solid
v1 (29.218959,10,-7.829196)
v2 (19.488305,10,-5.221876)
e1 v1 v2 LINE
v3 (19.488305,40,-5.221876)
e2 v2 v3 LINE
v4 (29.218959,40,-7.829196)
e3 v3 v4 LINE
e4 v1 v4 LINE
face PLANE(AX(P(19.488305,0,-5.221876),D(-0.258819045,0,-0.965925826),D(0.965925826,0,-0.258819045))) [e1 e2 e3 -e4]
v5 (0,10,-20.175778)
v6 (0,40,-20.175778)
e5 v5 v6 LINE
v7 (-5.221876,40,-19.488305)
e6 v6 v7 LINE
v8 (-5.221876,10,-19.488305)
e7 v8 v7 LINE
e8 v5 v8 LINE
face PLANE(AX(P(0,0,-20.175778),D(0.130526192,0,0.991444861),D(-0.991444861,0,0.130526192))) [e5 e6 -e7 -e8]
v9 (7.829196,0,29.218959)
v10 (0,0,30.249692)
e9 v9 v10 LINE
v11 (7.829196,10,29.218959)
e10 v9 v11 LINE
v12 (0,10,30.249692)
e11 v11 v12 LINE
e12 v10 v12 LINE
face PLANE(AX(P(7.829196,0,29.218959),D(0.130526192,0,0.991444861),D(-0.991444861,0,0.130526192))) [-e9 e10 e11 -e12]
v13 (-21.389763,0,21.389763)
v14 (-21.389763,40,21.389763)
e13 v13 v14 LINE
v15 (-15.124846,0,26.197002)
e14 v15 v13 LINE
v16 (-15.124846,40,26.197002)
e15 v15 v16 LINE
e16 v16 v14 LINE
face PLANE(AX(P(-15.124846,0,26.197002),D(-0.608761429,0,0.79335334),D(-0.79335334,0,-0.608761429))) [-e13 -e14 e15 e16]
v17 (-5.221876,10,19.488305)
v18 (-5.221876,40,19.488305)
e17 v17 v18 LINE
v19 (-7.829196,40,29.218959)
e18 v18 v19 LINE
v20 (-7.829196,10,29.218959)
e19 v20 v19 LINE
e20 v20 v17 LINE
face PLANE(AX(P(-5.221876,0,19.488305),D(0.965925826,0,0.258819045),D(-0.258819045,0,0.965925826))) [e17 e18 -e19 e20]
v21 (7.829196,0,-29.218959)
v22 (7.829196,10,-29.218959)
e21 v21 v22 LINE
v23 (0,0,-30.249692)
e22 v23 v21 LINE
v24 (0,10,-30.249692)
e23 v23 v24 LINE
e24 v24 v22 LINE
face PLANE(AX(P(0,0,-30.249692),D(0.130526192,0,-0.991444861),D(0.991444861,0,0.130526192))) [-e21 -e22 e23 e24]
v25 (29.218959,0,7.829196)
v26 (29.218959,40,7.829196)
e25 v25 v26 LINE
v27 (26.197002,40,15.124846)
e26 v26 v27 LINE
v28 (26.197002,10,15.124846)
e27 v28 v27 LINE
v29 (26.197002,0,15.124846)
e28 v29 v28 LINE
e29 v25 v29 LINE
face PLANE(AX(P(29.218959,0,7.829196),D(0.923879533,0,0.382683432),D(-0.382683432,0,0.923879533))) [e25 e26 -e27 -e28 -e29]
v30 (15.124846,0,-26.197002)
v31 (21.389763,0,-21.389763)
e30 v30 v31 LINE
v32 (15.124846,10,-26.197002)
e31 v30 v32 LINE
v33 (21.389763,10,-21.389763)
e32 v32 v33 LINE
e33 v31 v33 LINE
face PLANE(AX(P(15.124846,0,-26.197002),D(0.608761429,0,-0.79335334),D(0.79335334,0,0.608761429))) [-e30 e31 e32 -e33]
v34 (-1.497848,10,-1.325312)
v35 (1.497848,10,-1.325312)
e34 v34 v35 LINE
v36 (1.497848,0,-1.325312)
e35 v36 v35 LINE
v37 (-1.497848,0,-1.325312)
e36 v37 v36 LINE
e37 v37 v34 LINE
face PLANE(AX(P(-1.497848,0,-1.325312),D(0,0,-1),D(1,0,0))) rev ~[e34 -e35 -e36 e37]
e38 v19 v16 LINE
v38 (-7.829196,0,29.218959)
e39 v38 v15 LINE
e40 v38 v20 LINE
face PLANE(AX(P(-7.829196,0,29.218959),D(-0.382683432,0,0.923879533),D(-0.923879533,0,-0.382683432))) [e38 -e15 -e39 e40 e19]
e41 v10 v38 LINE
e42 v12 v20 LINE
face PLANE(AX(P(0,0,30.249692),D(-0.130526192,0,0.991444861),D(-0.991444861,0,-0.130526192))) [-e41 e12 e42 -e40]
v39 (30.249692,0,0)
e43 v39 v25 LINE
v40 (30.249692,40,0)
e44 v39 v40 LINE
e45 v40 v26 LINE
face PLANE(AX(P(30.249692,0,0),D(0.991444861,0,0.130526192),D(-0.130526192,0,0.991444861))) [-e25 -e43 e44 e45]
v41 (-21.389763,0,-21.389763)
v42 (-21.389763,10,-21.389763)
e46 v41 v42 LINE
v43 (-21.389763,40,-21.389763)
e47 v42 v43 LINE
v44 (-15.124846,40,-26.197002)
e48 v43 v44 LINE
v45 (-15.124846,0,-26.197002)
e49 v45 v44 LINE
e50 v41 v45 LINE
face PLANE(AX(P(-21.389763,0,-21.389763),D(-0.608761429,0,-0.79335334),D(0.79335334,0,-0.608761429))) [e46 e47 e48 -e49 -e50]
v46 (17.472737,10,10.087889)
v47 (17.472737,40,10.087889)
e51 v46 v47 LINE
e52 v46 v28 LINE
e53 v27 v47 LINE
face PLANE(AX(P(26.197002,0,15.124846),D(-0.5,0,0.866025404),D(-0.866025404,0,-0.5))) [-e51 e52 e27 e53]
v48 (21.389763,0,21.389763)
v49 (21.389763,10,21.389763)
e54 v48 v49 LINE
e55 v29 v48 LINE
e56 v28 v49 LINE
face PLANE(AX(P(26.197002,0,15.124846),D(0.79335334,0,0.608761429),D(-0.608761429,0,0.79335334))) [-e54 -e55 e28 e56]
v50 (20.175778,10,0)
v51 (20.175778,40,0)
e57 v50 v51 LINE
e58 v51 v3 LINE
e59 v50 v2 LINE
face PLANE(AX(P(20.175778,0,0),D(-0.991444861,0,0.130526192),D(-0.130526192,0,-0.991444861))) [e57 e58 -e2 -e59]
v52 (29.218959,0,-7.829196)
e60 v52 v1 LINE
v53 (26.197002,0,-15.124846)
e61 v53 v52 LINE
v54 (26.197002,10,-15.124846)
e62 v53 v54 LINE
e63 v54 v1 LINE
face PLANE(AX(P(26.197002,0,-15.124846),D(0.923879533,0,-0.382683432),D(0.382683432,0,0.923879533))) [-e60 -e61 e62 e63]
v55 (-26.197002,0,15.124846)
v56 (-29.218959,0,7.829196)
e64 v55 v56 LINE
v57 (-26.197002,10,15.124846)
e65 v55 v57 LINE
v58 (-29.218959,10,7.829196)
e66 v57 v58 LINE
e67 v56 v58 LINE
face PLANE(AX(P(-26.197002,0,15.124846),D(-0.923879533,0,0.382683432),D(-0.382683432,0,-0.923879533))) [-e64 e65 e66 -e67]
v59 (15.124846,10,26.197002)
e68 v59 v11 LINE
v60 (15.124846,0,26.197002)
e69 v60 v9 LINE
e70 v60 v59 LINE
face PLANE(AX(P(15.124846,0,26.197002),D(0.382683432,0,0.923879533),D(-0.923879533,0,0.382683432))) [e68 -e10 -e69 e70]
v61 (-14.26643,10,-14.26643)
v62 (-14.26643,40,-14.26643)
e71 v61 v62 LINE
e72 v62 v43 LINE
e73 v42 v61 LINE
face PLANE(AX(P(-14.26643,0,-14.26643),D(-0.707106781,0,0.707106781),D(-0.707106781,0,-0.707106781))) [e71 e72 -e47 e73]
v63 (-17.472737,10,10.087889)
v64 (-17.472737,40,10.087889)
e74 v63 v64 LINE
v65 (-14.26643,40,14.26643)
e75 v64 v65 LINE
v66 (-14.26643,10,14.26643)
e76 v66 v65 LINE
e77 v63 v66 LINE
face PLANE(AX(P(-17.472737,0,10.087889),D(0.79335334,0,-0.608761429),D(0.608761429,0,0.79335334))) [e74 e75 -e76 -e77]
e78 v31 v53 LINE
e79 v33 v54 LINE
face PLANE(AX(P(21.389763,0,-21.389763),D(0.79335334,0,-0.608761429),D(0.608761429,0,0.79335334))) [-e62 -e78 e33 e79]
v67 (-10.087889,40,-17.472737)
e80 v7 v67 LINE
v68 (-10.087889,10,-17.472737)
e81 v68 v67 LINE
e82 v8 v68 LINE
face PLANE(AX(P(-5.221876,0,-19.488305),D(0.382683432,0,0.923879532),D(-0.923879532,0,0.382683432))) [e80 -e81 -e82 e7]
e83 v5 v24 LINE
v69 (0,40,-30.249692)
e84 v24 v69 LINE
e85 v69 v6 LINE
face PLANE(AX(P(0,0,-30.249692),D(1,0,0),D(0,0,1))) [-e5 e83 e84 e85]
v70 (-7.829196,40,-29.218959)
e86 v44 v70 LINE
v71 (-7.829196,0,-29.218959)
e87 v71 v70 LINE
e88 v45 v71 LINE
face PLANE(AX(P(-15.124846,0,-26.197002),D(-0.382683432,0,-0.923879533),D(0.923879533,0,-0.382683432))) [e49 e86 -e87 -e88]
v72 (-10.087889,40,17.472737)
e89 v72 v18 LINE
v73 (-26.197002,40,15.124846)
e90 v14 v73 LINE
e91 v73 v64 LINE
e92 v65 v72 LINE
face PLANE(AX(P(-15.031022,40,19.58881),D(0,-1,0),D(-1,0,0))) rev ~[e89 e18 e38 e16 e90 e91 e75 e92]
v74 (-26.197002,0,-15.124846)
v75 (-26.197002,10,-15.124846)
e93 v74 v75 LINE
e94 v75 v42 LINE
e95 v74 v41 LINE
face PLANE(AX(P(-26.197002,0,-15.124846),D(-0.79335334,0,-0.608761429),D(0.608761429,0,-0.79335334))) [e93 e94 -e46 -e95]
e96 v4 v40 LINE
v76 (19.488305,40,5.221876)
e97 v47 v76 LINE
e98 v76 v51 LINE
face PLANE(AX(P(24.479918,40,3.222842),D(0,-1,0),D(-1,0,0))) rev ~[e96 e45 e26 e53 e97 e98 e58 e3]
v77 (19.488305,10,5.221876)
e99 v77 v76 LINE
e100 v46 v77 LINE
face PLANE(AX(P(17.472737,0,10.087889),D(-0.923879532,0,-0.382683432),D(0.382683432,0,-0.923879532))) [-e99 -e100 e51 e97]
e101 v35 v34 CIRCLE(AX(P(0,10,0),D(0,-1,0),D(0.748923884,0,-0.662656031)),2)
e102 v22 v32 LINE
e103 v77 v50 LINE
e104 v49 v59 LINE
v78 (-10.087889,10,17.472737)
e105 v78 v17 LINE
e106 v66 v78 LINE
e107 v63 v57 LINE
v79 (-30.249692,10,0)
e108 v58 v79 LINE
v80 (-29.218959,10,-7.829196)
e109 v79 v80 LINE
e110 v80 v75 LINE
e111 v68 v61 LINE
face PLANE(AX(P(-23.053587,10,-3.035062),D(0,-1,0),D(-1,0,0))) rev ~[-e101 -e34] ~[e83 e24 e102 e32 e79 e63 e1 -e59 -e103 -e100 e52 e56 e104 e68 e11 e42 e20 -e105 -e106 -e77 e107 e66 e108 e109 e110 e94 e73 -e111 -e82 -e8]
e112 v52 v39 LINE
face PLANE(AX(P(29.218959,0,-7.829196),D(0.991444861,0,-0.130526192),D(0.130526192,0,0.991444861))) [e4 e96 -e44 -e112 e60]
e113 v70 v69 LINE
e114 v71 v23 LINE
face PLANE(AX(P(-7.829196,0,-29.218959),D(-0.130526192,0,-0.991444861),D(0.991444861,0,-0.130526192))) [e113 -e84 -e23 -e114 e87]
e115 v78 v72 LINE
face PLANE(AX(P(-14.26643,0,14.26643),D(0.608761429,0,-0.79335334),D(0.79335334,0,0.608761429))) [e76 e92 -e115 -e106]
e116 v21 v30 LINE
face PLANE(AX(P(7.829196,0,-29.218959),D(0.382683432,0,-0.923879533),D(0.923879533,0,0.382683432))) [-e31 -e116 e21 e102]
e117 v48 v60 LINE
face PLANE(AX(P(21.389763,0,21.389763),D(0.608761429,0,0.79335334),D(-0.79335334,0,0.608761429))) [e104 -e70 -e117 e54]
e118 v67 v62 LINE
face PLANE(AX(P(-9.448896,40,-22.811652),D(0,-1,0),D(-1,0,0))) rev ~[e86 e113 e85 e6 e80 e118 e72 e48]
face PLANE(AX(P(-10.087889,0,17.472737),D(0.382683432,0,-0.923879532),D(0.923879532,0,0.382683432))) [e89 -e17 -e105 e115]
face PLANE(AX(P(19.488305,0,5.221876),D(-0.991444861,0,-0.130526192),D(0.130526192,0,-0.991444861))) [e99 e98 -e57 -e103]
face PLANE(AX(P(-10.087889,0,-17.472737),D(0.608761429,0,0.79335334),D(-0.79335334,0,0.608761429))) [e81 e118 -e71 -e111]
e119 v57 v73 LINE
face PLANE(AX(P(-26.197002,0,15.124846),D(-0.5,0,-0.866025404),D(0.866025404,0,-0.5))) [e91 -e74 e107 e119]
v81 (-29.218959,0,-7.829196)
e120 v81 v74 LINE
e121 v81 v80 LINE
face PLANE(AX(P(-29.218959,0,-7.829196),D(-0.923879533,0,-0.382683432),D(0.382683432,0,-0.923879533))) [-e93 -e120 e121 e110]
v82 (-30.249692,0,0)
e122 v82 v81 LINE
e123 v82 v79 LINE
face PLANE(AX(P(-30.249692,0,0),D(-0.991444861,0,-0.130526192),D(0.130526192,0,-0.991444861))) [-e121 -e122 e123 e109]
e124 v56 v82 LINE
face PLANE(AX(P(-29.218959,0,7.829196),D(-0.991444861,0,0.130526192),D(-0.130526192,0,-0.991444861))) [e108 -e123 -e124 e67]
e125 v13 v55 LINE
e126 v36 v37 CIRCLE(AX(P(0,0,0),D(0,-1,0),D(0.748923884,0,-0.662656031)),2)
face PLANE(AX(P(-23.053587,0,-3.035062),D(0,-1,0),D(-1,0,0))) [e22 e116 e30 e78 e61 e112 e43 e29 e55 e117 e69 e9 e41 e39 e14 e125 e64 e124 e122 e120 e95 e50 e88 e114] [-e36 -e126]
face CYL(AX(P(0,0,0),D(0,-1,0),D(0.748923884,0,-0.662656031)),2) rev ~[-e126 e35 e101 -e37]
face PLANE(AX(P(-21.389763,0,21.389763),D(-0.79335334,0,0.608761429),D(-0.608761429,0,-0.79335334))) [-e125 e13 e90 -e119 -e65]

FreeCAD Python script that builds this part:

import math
import FreeCAD as App
import Part
import Sketcher
Q = App.Units.Quantity

doc = App.newDocument("Part")
body = doc.addObject("PartDesign::Body", "Body")

# Sketch on XZ plane
sketch1 = doc.addObject("Sketcher::SketchObject", "Sketch")
body.addObject(sketch1)
sketch1.AttachmentSupport = (doc.XZ_Plane, [""])
sketch1.MapMode = "FlatFace"
sketch1.addGeometry(Part.LineSegment(App.Vector(-10.1, -17.5, 0), App.Vector(-14.3, -14.3, 0)), False)
sketch1.addGeometry(Part.LineSegment(App.Vector(-14.3, -14.3, 0), App.Vector(-17.5, -10.1, 0)), False)
sketch1.addGeometry(Part.LineSegment(App.Vector(-17.5, -10.1, 0), App.Vector(-19.5, -5.2, 0)), False)
sketch1.addGeometry(Part.LineSegment(App.Vector(-19.5, -5.2, 0), App.Vector(-20.2, 0, 0)), False)
sketch1.addGeometry(Part.LineSegment(App.Vector(-20.2, 0, 0), App.Vector(-19.5, 5.2, 0)), False)
sketch1.addGeometry(Part.LineSegment(App.Vector(-19.5, 5.2, 0), App.Vector(-17.5, 10.1, 0)), False)
sketch1.addGeometry(Part.LineSegment(App.Vector(-17.5, 10.1, 0), App.Vector(-14.3, 14.3, 0)), False)
sketch1.addGeometry(Part.LineSegment(App.Vector(-14.3, 14.3, 0), App.Vector(-10.1, 17.5, 0)), False)
sketch1.addGeometry(Part.LineSegment(App.Vector(-10.1, 17.5, 0), App.Vector(-5.2, 19.5, 0)), False)
sketch1.addGeometry(Part.LineSegment(App.Vector(-5.2, 19.5, 0), App.Vector(0, 20.2, 0)), False)
sketch1.addGeometry(Part.LineSegment(App.Vector(0, 20.2, 0), App.Vector(5.2, 19.5, 0)), False)
sketch1.addGeometry(Part.LineSegment(App.Vector(5.2, 19.5, 0), App.Vector(10.1, 17.5, 0)), False)
sketch1.addGeometry(Part.LineSegment(App.Vector(10.1, 17.5, 0), App.Vector(14.3, 14.3, 0)), False)
sketch1.addGeometry(Part.LineSegment(App.Vector(14.3, 14.3, 0), App.Vector(17.5, 10.1, 0)), False)
sketch1.addGeometry(Part.LineSegment(App.Vector(17.5, 10.1, 0), App.Vector(19.5, 5.2, 0)), False)
sketch1.addGeometry(Part.LineSegment(App.Vector(19.5, 5.2, 0), App.Vector(20.2, 0, 0)), False)
sketch1.addGeometry(Part.LineSegment(App.Vector(20.2, 0, 0), App.Vector(19.5, -5.2, 0)), False)
sketch1.addGeometry(Part.LineSegment(App.Vector(19.5, -5.2, 0), App.Vector(17.5, -10.1, 0)), False)
sketch1.addGeometry(Part.LineSegment(App.Vector(17.5, -10.1, 0), App.Vector(14.3, -14.3, 0)), False)
sketch1.addGeometry(Part.LineSegment(App.Vector(14.3, -14.3, 0), App.Vector(10.1, -17.5, 0)), False)
sketch1.addGeometry(Part.LineSegment(App.Vector(10.1, -17.5, 0), App.Vector(5.2, -19.5, 0)), False)
sketch1.addGeometry(Part.LineSegment(App.Vector(5.2, -19.5, 0), App.Vector(0, -20.2, 0)), False)
sketch1.addGeometry(Part.LineSegment(App.Vector(0, -20.2, 0), App.Vector(-5.2, -19.5, 0)), False)
sketch1.addGeometry(Part.LineSegment(App.Vector(-5.2, -19.5, 0), App.Vector(-10.1, -17.5, 0)), False)
sketch1.addGeometry(Part.ArcOfCircle(Part.Circle(App.Vector(0, 0, 0), App.Vector(0, 0, 1), 2), math.radians(-42), math.radians(222)), False)
sketch1.addGeometry(Part.LineSegment(App.Vector(-1.5, -1.3, 0), App.Vector(1.5, -1.3, 0)), False)
sketch1.addConstraint(Sketcher.Constraint("Coincident", 0, 2, 1, 1))
sketch1.addConstraint(Sketcher.Constraint("Coincident", 1, 2, 2, 1))
sketch1.addConstraint(Sketcher.Constraint("Coincident", 2, 2, 3, 1))
sketch1.addConstraint(Sketcher.Constraint("Coincident", 3, 2, 4, 1))
sketch1.addConstraint(Sketcher.Constraint("Coincident", 4, 2, 5, 1))
sketch1.addConstraint(Sketcher.Constraint("Coincident", 5, 2, 6, 1))
sketch1.addConstraint(Sketcher.Constraint("Coincident", 6, 2, 7, 1))
sketch1.addConstraint(Sketcher.Constraint("Coincident", 7, 2, 8, 1))
sketch1.addConstraint(Sketcher.Constraint("Coincident", 8, 2, 9, 1))
sketch1.addConstraint(Sketcher.Constraint("Coincident", 9, 2, 10, 1))
sketch1.addConstraint(Sketcher.Constraint("Coincident", 10, 2, 11, 1))
sketch1.addConstraint(Sketcher.Constraint("Coincident", 11, 2, 12, 1))
sketch1.addConstraint(Sketcher.Constraint("Coincident", 12, 2, 13, 1))
sketch1.addConstraint(Sketcher.Constraint("Coincident", 13, 2, 14, 1))
sketch1.addConstraint(Sketcher.Constraint("Coincident", 14, 2, 15, 1))
sketch1.addConstraint(Sketcher.Constraint("Coincident", 15, 2, 16, 1))
sketch1.addConstraint(Sketcher.Constraint("Coincident", 16, 2, 17, 1))
sketch1.addConstraint(Sketcher.Constraint("Coincident", 17, 2, 18, 1))
sketch1.addConstraint(Sketcher.Constraint("Coincident", 18, 2, 19, 1))
sketch1.addConstraint(Sketcher.Constraint("Coincident", 19, 2, 20, 1))
sketch1.addConstraint(Sketcher.Constraint("Coincident", 20, 2, 21, 1))
sketch1.addConstraint(Sketcher.Constraint("Coincident", 21, 2, 22, 1))
sketch1.addConstraint(Sketcher.Constraint("Coincident", 22, 2, 23, 1))
sketch1.addConstraint(Sketcher.Constraint("Coincident", 23, 2, 0, 1))
sketch1.addConstraint(Sketcher.Constraint("Coincident", 24, 1, 25, 2))
sketch1.addConstraint(Sketcher.Constraint("Coincident", 25, 1, 24, 2))
sketch1.addConstraint(Sketcher.Constraint("Horizontal", 25))
sketch1.addConstraint(Sketcher.Constraint("Coincident", 24, 3, -1, 1))
sketch1.addConstraint(Sketcher.Constraint("Symmetric", 0, 2, 12, 2, -1, 1))
sketch1.addConstraint(Sketcher.Constraint("Symmetric", 1, 2, 13, 2, -1, 1))
sketch1.addConstraint(Sketcher.Constraint("Symmetric", 2, 2, 14, 2, -1, 1))
sketch1.addConstraint(Sketcher.Constraint("Symmetric", 3, 2, 15, 2, -1, 1))
sketch1.addConstraint(Sketcher.Constraint("Symmetric", 4, 2, 16, 2, -1, 1))
sketch1.addConstraint(Sketcher.Constraint("Symmetric", 5, 2, 17, 2, -1, 1))
sketch1.addConstraint(Sketcher.Constraint("Symmetric", 6, 2, 18, 2, -1, 1))
sketch1.addConstraint(Sketcher.Constraint("Symmetric", 7, 2, 19, 2, -1, 1))
sketch1.addConstraint(Sketcher.Constraint("Symmetric", 8, 2, 20, 2, -1, 1))
sketch1.addConstraint(Sketcher.Constraint("Symmetric", 9, 2, 21, 2, -1, 1))
sketch1.addConstraint(Sketcher.Constraint("Symmetric", 10, 2, 22, 2, -1, 1))
sketch1.addConstraint(Sketcher.Constraint("Symmetric", 11, 2, 23, 2, -1, 1))
sketch1.addConstraint(Sketcher.Constraint("Symmetric", 8, 2, 10, 2, -2))
sketch1.addConstraint(Sketcher.Constraint("Symmetric", 7, 2, 11, 2, -2))
sketch1.addConstraint(Sketcher.Constraint("Symmetric", 6, 2, 12, 2, -2))
sketch1.addConstraint(Sketcher.Constraint("Symmetric", 5, 2, 13, 2, -2))
sketch1.addConstraint(Sketcher.Constraint("Symmetric", 4, 2, 14, 2, -2))
sketch1.addConstraint(Sketcher.Constraint("PointOnObject", 3, 2, -1))
sketch1.addConstraint(Sketcher.Constraint("PointOnObject", 9, 2, -2))
sketch1.addConstraint(Sketcher.Constraint("Perpendicular", 0, 6))
sketch1.addConstraint(Sketcher.Constraint("Perpendicular", 2, 8))
sketch1.addConstraint(Sketcher.Constraint("Perpendicular", 3, 9))
sketch1.addConstraint(Sketcher.Constraint("Equal", 0, 1))
sketch1.addConstraint(Sketcher.Constraint("Equal", 1, 2))
sketch1.addConstraint(Sketcher.Constraint("Equal", 2, 3))
sketch1.addConstraint(Sketcher.Constraint("Equal", 7, 8))
sketch1.addConstraint(Sketcher.Constraint("Equal", 8, 9))
sketch1.addConstraint(Sketcher.Constraint("Radius", 24, Q("2 mm")))
sketch1.addConstraint(Sketcher.Constraint("Angle", 0, Q("142.5 deg")))
sketch1.addConstraint(Sketcher.Constraint("Angle", 2, Q("112.5 deg")))
sketch1.addConstraint(Sketcher.Constraint("Angle", 3, Q("97.5 deg")))
sketch1.addConstraint(Sketcher.Constraint("DistanceX", 25, 1, 25, 2, Q("2.995696 mm")))
sketch1.addConstraint(Sketcher.Constraint("DistanceX", 0, 2, -1, 1, Q("14.26643 mm")))
pad1 = doc.addObject("PartDesign::Pad", "Pad")
body.addObject(pad1)
pad1.Profile = sketch1
pad1.Length = 10
pad1.Reversed = True

# Sketch on XZ plane
sketch2 = doc.addObject("Sketcher::SketchObject", "Sketch001")
body.addObject(sketch2)
sketch2.AttachmentSupport = (doc.XZ_Plane, [""])
sketch2.MapMode = "FlatFace"
sketch2.addGeometry(Part.LineSegment(App.Vector(-14, 14, 0), App.Vector(-17, 10, 0)), False)
sketch2.addGeometry(Part.LineSegment(App.Vector(-17, 10, 0), App.Vector(-26, 15, 0)), False)
sketch2.addGeometry(Part.LineSegment(App.Vector(-26, 15, 0), App.Vector(-21, 21, 0)), False)
sketch2.addGeometry(Part.LineSegment(App.Vector(-21, 21, 0), App.Vector(-15, 26, 0)), False)
sketch2.addGeometry(Part.LineSegment(App.Vector(-15, 26, 0), App.Vector(-8, 29, 0)), False)
sketch2.addGeometry(Part.LineSegment(App.Vector(-8, 29, 0), App.Vector(-5, 19, 0)), False)
sketch2.addGeometry(Part.LineSegment(App.Vector(-5, 19, 0), App.Vector(-10, 17, 0)), False)
sketch2.addGeometry(Part.LineSegment(App.Vector(-10, 17, 0), App.Vector(-14, 14, 0)), False)
sketch2.addGeometry(Part.LineSegment(App.Vector(-5, -19, 0), App.Vector(0, -20, 0)), False)
sketch2.addGeometry(Part.LineSegment(App.Vector(0, -20, 0), App.Vector(0, -30, 0)), False)
sketch2.addGeometry(Part.LineSegment(App.Vector(0, -30, 0), App.Vector(-8, -29, 0)), False)
sketch2.addGeometry(Part.LineSegment(App.Vector(-8, -29, 0), App.Vector(-15, -26, 0)), False)
sketch2.addGeometry(Part.LineSegment(App.Vector(-15, -26, 0), App.Vector(-21, -21, 0)), False)
sketch2.addGeometry(Part.LineSegment(App.Vector(-21, -21, 0), App.Vector(-14, -14, 0)), False)
sketch2.addGeometry(Part.LineSegment(App.Vector(-14, -14, 0), App.Vector(-10, -17, 0)), False)
sketch2.addGeometry(Part.LineSegment(App.Vector(-10, -17, 0), App.Vector(-5, -19, 0)), False)
sketch2.addGeometry(Part.LineSegment(App.Vector(19, 5, 0), App.Vector(17, 10, 0)), False)
sketch2.addGeometry(Part.LineSegment(App.Vector(17, 10, 0), App.Vector(26, 15, 0)), False)
sketch2.addGeometry(Part.LineSegment(App.Vector(26, 15, 0), App.Vector(29, 8, 0)), False)
sketch2.addGeometry(Part.LineSegment(App.Vector(29, 8, 0), App.Vector(30, 0, 0)), False)
sketch2.addGeometry(Part.LineSegment(App.Vector(30, 0, 0), App.Vector(29, -8, 0)), False)
sketch2.addGeometry(Part.LineSegment(App.Vector(29, -8, 0), App.Vector(19, -5, 0)), False)
sketch2.addGeometry(Part.LineSegment(App.Vector(19, -5, 0), App.Vector(20, 0, 0)), False)
sketch2.addGeometry(Part.LineSegment(App.Vector(20, 0, 0), App.Vector(19, 5, 0)), False)
sketch2.addConstraint(Sketcher.Constraint("Coincident", 0, 2, 1, 1))
sketch2.addConstraint(Sketcher.Constraint("Coincident", 1, 2, 2, 1))
sketch2.addConstraint(Sketcher.Constraint("Coincident", 2, 2, 3, 1))
sketch2.addConstraint(Sketcher.Constraint("Coincident", 3, 2, 4, 1))
sketch2.addConstraint(Sketcher.Constraint("Coincident", 4, 2, 5, 1))
sketch2.addConstraint(Sketcher.Constraint("Coincident", 5, 2, 6, 1))
sketch2.addConstraint(Sketcher.Constraint("Coincident", 6, 2, 7, 1))
sketch2.addConstraint(Sketcher.Constraint("Coincident", 7, 2, 0, 1))
sketch2.addConstraint(Sketcher.Constraint("Coincident", 8, 2, 9, 1))
sketch2.addConstraint(Sketcher.Constraint("Coincident", 9, 2, 10, 1))
sketch2.addConstraint(Sketcher.Constraint("Coincident", 10, 2, 11, 1))
sketch2.addConstraint(Sketcher.Constraint("Coincident", 11, 2, 12, 1))
sketch2.addConstraint(Sketcher.Constraint("Coincident", 12, 2, 13, 1))
sketch2.addConstraint(Sketcher.Constraint("Coincident", 13, 2, 14, 1))
sketch2.addConstraint(Sketcher.Constraint("Coincident", 14, 2, 15, 1))
sketch2.addConstraint(Sketcher.Constraint("Coincident", 15, 2, 8, 1))
sketch2.addConstraint(Sketcher.Constraint("Coincident", 16, 2, 17, 1))
sketch2.addConstraint(Sketcher.Constraint("Coincident", 17, 2, 18, 1))
sketch2.addConstraint(Sketcher.Constraint("Coincident", 18, 2, 19, 1))
sketch2.addConstraint(Sketcher.Constraint("Coincident", 19, 2, 20, 1))
sketch2.addConstraint(Sketcher.Constraint("Coincident", 20, 2, 21, 1))
sketch2.addConstraint(Sketcher.Constraint("Coincident", 21, 2, 22, 1))
sketch2.addConstraint(Sketcher.Constraint("Coincident", 22, 2, 23, 1))
sketch2.addConstraint(Sketcher.Constraint("Coincident", 23, 2, 16, 1))
sketch2.addConstraint(Sketcher.Constraint("Vertical", 9))
sketch2.addConstraint(Sketcher.Constraint("Symmetric", 0, 2, 16, 2, -2))
sketch2.addConstraint(Sketcher.Constraint("Symmetric", 1, 2, 17, 2, -2))
sketch2.addConstraint(Sketcher.Constraint("Symmetric", 4, 2, 10, 2, -1))
sketch2.addConstraint(Sketcher.Constraint("Symmetric", 3, 2, 11, 2, -1))
sketch2.addConstraint(Sketcher.Constraint("Symmetric", 2, 2, 12, 2, -1))
sketch2.addConstraint(Sketcher.Constraint("Symmetric", 7, 2, 13, 2, -1))
sketch2.addConstraint(Sketcher.Constraint("Symmetric", 6, 2, 14, 2, -1))
sketch2.addConstraint(Sketcher.Constraint("Symmetric", 5, 2, 15, 2, -1))
sketch2.addConstraint(Sketcher.Constraint("Symmetric", 18, 2, 20, 2, -1))
sketch2.addConstraint(Sketcher.Constraint("Symmetric", 21, 2, 23, 2, -1))
sketch2.addConstraint(Sketcher.Constraint("PointOnObject", 8, 2, -2))
sketch2.addConstraint(Sketcher.Constraint("PointOnObject", 19, 2, -1))
sketch2.addConstraint(Sketcher.Constraint("PointOnObject", 22, 2, -1))
sketch2.addConstraint(Sketcher.Constraint("Parallel", 0, 2))
sketch2.addConstraint(Sketcher.Constraint("Parallel", 4, 6))
sketch2.addConstraint(Sketcher.Constraint("Parallel", 3, 7))
sketch2.addConstraint(Sketcher.Constraint("Parallel", 8, 10))
sketch2.addConstraint(Sketcher.Constraint("Perpendicular", 2, 12))
sketch2.addConstraint(Sketcher.Constraint("Perpendicular", 6, 16))
sketch2.addConstraint(Sketcher.Constraint("Parallel", 16, 18))
sketch2.addConstraint(Sketcher.Constraint("Perpendicular", 10, 20))
sketch2.addConstraint(Sketcher.Constraint("Parallel", 20, 22))
sketch2.addConstraint(Sketcher.Constraint("Equal", 2, 3))
sketch2.addConstraint(Sketcher.Constraint("Equal", 3, 4))
sketch2.addConstraint(Sketcher.Constraint("Equal", 1, 5))
sketch2.addConstraint(Sketcher.Constraint("Equal", 0, 6))
sketch2.addConstraint(Sketcher.Constraint("Equal", 6, 7))
sketch2.addConstraint(Sketcher.Constraint("Equal", 7, 8))
sketch2.addConstraint(Sketcher.Constraint("Equal", 4, 10))
sketch2.addConstraint(Sketcher.Constraint("Equal", 5, 13))
sketch2.addConstraint(Sketcher.Constraint("Equal", 15, 16))
sketch2.addConstraint(Sketcher.Constraint("Equal", 12, 18))
sketch2.addConstraint(Sketcher.Constraint("Equal", 18, 19))
sketch2.addConstraint(Sketcher.Constraint("Equal", 17, 21))
sketch2.addConstraint(Sketcher.Constraint("Angle", 1, Q("150 deg")))
sketch2.addConstraint(Sketcher.Constraint("DistanceX", 4, 2, 17, 2, Q("34.026198 mm")))
sketch2.addConstraint(Sketcher.Constraint("DistanceY", 9, 2, 9, 1, Q("10.073914 mm")))
pad2 = doc.addObject("PartDesign::Pad", "Pad001")
body.addObject(pad2)
pad2.Profile = sketch2
pad2.Length = 40
pad2.Reversed = True

# Sketch on XZ plane
sketch3 = doc.addObject("Sketcher::SketchObject", "Sketch002")
body.addObject(sketch3)
sketch3.AttachmentSupport = (doc.XZ_Plane, [""])
sketch3.MapMode = "FlatFace"
sketch3.addGeometry(Part.LineSegment(App.Vector(-26, 15, 0), App.Vector(-17, 10, 0)), False)
sketch3.addGeometry(Part.LineSegment(App.Vector(-17, 10, 0), App.Vector(-19, 5, 0)), False)
sketch3.addGeometry(Part.LineSegment(App.Vector(-19, 5, 0), App.Vector(-20, 0, 0)), False)
sketch3.addGeometry(Part.LineSegment(App.Vector(-20, 0, 0), App.Vector(-19, -5, 0)), False)
sketch3.addGeometry(Part.LineSegment(App.Vector(-19, -5, 0), App.Vector(-17, -10, 0)), False)
sketch3.addGeometry(Part.LineSegment(App.Vector(-17, -10, 0), App.Vector(-14, -14, 0)), False)
sketch3.addGeometry(Part.LineSegment(App.Vector(-14, -14, 0), App.Vector(-21, -21, 0)), False)
sketch3.addGeometry(Part.LineSegment(App.Vector(-21, -21, 0), App.Vector(-26, -15, 0)), False)
sketch3.addGeometry(Part.LineSegment(App.Vector(-26, -15, 0), App.Vector(-29, -8, 0)), False)
sketch3.addGeometry(Part.LineSegment(App.Vector(-29, -8, 0), App.Vector(-30, 0, 0)), False)
sketch3.addGeometry(Part.LineSegment(App.Vector(-30, 0, 0), App.Vector(-29, 8, 0)), False)
sketch3.addGeometry(Part.LineSegment(App.Vector(-29, 8, 0), App.Vector(-26, 15, 0)), False)
sketch3.addGeometry(Part.LineSegment(App.Vector(17, -10, 0), App.Vector(19, -5, 0)), False)
sketch3.addGeometry(Part.LineSegment(App.Vector(19, -5, 0), App.Vector(29, -8, 0)), False)
sketch3.addGeometry(Part.LineSegment(App.Vector(29, -8, 0), App.Vector(26, -15, 0)), False)
sketch3.addGeometry(Part.LineSegment(App.Vector(26, -15, 0), App.Vector(21, -21, 0)), False)
sketch3.addGeometry(Part.LineSegment(App.Vector(21, -21, 0), App.Vector(15, -26, 0)), False)
sketch3.addGeometry(Part.LineSegment(App.Vector(15, -26, 0), App.Vector(8, -29, 0)), False)
sketch3.addGeometry(Part.LineSegment(App.Vector(8, -29, 0), App.Vector(0, -30, 0)), False)
sketch3.addGeometry(Part.LineSegment(App.Vector(0, -30, 0), App.Vector(0, -20, 0)), False)
sketch3.addGeometry(Part.LineSegment(App.Vector(0, -20, 0), App.Vector(5, -19, 0)), False)
sketch3.addGeometry(Part.LineSegment(App.Vector(5, -19, 0), App.Vector(10, -17, 0)), False)
sketch3.addGeometry(Part.LineSegment(App.Vector(10, -17, 0), App.Vector(14, -14, 0)), False)
sketch3.addGeometry(Part.LineSegment(App.Vector(14, -14, 0), App.Vector(17, -10, 0)), False)
sketch3.addGeometry(Part.LineSegment(App.Vector(0, 20, 0), App.Vector(-5, 19, 0)), False)
sketch3.addGeometry(Part.LineSegment(App.Vector(-5, 19, 0), App.Vector(-8, 29, 0)), False)
sketch3.addGeometry(Part.LineSegment(App.Vector(-8, 29, 0), App.Vector(0, 30, 0)), False)
sketch3.addGeometry(Part.LineSegment(App.Vector(0, 30, 0), App.Vector(8, 29, 0)), False)
sketch3.addGeometry(Part.LineSegment(App.Vector(8, 29, 0), App.Vector(15, 26, 0)), False)
sketch3.addGeometry(Part.LineSegment(App.Vector(15, 26, 0), App.Vector(21, 21, 0)), False)
sketch3.addGeometry(Part.LineSegment(App.Vector(21, 21, 0), App.Vector(26, 15, 0)), False)
sketch3.addGeometry(Part.LineSegment(App.Vector(26, 15, 0), App.Vector(17, 10, 0)), False)
sketch3.addGeometry(Part.LineSegment(App.Vector(17, 10, 0), App.Vector(14, 14, 0)), False)
sketch3.addGeometry(Part.LineSegment(App.Vector(14, 14, 0), App.Vector(10, 17, 0)), False)
sketch3.addGeometry(Part.LineSegment(App.Vector(10, 17, 0), App.Vector(5, 19, 0)), False)
sketch3.addGeometry(Part.LineSegment(App.Vector(5, 19, 0), App.Vector(0, 20, 0)), False)
sketch3.addConstraint(Sketcher.Constraint("Coincident", 0, 2, 1, 1))
sketch3.addConstraint(Sketcher.Constraint("Coincident", 1, 2, 2, 1))
sketch3.addConstraint(Sketcher.Constraint("Coincident", 2, 2, 3, 1))
sketch3.addConstraint(Sketcher.Constraint("Coincident", 3, 2, 4, 1))
sketch3.addConstraint(Sketcher.Constraint("Coincident", 4, 2, 5, 1))
sketch3.addConstraint(Sketcher.Constraint("Coincident", 5, 2, 6, 1))
sketch3.addConstraint(Sketcher.Constraint("Coincident", 6, 2, 7, 1))
sketch3.addConstraint(Sketcher.Constraint("Coincident", 7, 2, 8, 1))
sketch3.addConstraint(Sketcher.Constraint("Coincident", 8, 2, 9, 1))
sketch3.addConstraint(Sketcher.Constraint("Coincident", 9, 2, 10, 1))
sketch3.addConstraint(Sketcher.Constraint("Coincident", 10, 2, 11, 1))
sketch3.addConstraint(Sketcher.Constraint("Coincident", 11, 2, 0, 1))
sketch3.addConstraint(Sketcher.Constraint("Coincident", 12, 2, 13, 1))
sketch3.addConstraint(Sketcher.Constraint("Coincident", 13, 2, 14, 1))
sketch3.addConstraint(Sketcher.Constraint("Coincident", 14, 2, 15, 1))
sketch3.addConstraint(Sketcher.Constraint("Coincident", 15, 2, 16, 1))
sketch3.addConstraint(Sketcher.Constraint("Coincident", 16, 2, 17, 1))
sketch3.addConstraint(Sketcher.Constraint("Coincident", 17, 2, 18, 1))
sketch3.addConstraint(Sketcher.Constraint("Coincident", 18, 2, 19, 1))
sketch3.addConstraint(Sketcher.Constraint("Coincident", 19, 2, 20, 1))
sketch3.addConstraint(Sketcher.Constraint("Coincident", 20, 2, 21, 1))
sketch3.addConstraint(Sketcher.Constraint("Coincident", 21, 2, 22, 1))
sketch3.addConstraint(Sketcher.Constraint("Coincident", 22, 2, 23, 1))
sketch3.addConstraint(Sketcher.Constraint("Coincident", 23, 2, 12, 1))
sketch3.addConstraint(Sketcher.Constraint("Coincident", 24, 2, 25, 1))
sketch3.addConstraint(Sketcher.Constraint("Coincident", 25, 2, 26, 1))
sketch3.addConstraint(Sketcher.Constraint("Coincident", 26, 2, 27, 1))
sketch3.addConstraint(Sketcher.Constraint("Coincident", 27, 2, 28, 1))
sketch3.addConstraint(Sketcher.Constraint("Coincident", 28, 2, 29, 1))
sketch3.addConstraint(Sketcher.Constraint("Coincident", 29, 2, 30, 1))
sketch3.addConstraint(Sketcher.Constraint("Coincident", 30, 2, 31, 1))
sketch3.addConstraint(Sketcher.Constraint("Coincident", 31, 2, 32, 1))
sketch3.addConstraint(Sketcher.Constraint("Coincident", 32, 2, 33, 1))
sketch3.addConstraint(Sketcher.Constraint("Coincident", 33, 2, 34, 1))
sketch3.addConstraint(Sketcher.Constraint("Coincident", 34, 2, 35, 1))
sketch3.addConstraint(Sketcher.Constraint("Coincident", 35, 2, 24, 1))
sketch3.addConstraint(Sketcher.Constraint("Vertical", 19))
sketch3.addConstraint(Sketcher.Constraint("Symmetric", 1, 2, 12, 2, -1, 1))
sketch3.addConstraint(Sketcher.Constraint("Symmetric", 10, 2, 13, 2, -1, 1))
sketch3.addConstraint(Sketcher.Constraint("Symmetric", 11, 2, 14, 2, -1, 1))
sketch3.addConstraint(Sketcher.Constraint("Symmetric", 0, 2, 23, 2, -1, 1))
sketch3.addConstraint(Sketcher.Constraint("Symmetric", 20, 2, 24, 2, -1, 1))
sketch3.addConstraint(Sketcher.Constraint("Symmetric", 17, 2, 25, 2, -1, 1))
sketch3.addConstraint(Sketcher.Constraint("Symmetric", 18, 2, 26, 2, -1, 1))
sketch3.addConstraint(Sketcher.Constraint("Symmetric", 6, 2, 29, 2, -1, 1))
sketch3.addConstraint(Sketcher.Constraint("Symmetric", 7, 2, 30, 2, -1, 1))
sketch3.addConstraint(Sketcher.Constraint("Symmetric", 4, 2, 31, 2, -1, 1))
sketch3.addConstraint(Sketcher.Constraint("Symmetric", 5, 2, 32, 2, -1, 1))
sketch3.addConstraint(Sketcher.Constraint("Symmetric", 19, 2, 35, 2, -1, 1))
sketch3.addConstraint(Sketcher.Constraint("Symmetric", 3, 2, 12, 2, -2))
sketch3.addConstraint(Sketcher.Constraint("Symmetric", 8, 2, 13, 2, -2))
sketch3.addConstraint(Sketcher.Constraint("Symmetric", 7, 2, 14, 2, -2))
sketch3.addConstraint(Sketcher.Constraint("Symmetric", 6, 2, 15, 2, -2))
sketch3.addConstraint(Sketcher.Constraint("Symmetric", 5, 2, 22, 2, -2))
sketch3.addConstraint(Sketcher.Constraint("Symmetric", 4, 2, 23, 2, -2))
sketch3.addConstraint(Sketcher.Constraint("Symmetric", 25, 2, 27, 2, -2))
sketch3.addConstraint(Sketcher.Constraint("Symmetric", 24, 2, 34, 2, -2))
sketch3.addConstraint(Sketcher.Constraint("Symmetric", 16, 2, 28, 2, -1))
sketch3.addConstraint(Sketcher.Constraint("Symmetric", 21, 2, 33, 2, -1))
sketch3.addConstraint(Sketcher.Constraint("PointOnObject", 2, 2, -1))
sketch3.addConstraint(Sketcher.Constraint("PointOnObject", 9, 2, -1))
sketch3.addConstraint(Sketcher.Constraint("PointOnObject", 18, 2, -2))
sketch3.addConstraint(Sketcher.Constraint("Parallel", 5, 7))
sketch3.addConstraint(Sketcher.Constraint("Parallel", 4, 8))
sketch3.addConstraint(Sketcher.Constraint("Parallel", 3, 9))
sketch3.addConstraint(Sketcher.Constraint("Perpendicular", 7, 16))
sketch3.addConstraint(Sketcher.Constraint("Perpendicular", 8, 17))
sketch3.addConstraint(Sketcher.Constraint("Perpendicular", 9, 18))
sketch3.addConstraint(Sketcher.Constraint("Parallel", 18, 20))
sketch3.addConstraint(Sketcher.Constraint("Parallel", 17, 21))
sketch3.addConstraint(Sketcher.Constraint("Parallel", 16, 22))
sketch3.addConstraint(Sketcher.Constraint("Equal", 1, 2))
sketch3.addConstraint(Sketcher.Constraint("Equal", 4, 5))
sketch3.addConstraint(Sketcher.Constraint("Equal", 0, 6))
sketch3.addConstraint(Sketcher.Constraint("Equal", 7, 8))
sketch3.addConstraint(Sketcher.Constraint("Equal", 8, 9))
sketch3.addConstraint(Sketcher.Constraint("Equal", 6, 13))
sketch3.addConstraint(Sketcher.Constraint("Equal", 15, 16))
sketch3.addConstraint(Sketcher.Constraint("Equal", 16, 17))
sketch3.addConstraint(Sketcher.Constraint("Equal", 17, 18))
sketch3.addConstraint(Sketcher.Constraint("Equal", 12, 20))
sketch3.addConstraint(Sketcher.Constraint("Equal", 20, 21))
sketch3.addConstraint(Sketcher.Constraint("Equal", 21, 22))
sketch3.addConstraint(Sketcher.Constraint("Angle", 0, Q("-30 deg")))
sketch3.addConstraint(Sketcher.Constraint("DistanceX", 4, 2, 15, 2, Q("38.862499 mm")))
sketch3.addConstraint(Sketcher.Constraint("DistanceX", 1, 2, 27, 2, Q("27.317502 mm")))
pad3 = doc.addObject("PartDesign::Pad", "Pad002")
body.addObject(pad3)
pad3.Profile = sketch3
pad3.Length = 10
pad3.Reversed = True

doc.recompute()
